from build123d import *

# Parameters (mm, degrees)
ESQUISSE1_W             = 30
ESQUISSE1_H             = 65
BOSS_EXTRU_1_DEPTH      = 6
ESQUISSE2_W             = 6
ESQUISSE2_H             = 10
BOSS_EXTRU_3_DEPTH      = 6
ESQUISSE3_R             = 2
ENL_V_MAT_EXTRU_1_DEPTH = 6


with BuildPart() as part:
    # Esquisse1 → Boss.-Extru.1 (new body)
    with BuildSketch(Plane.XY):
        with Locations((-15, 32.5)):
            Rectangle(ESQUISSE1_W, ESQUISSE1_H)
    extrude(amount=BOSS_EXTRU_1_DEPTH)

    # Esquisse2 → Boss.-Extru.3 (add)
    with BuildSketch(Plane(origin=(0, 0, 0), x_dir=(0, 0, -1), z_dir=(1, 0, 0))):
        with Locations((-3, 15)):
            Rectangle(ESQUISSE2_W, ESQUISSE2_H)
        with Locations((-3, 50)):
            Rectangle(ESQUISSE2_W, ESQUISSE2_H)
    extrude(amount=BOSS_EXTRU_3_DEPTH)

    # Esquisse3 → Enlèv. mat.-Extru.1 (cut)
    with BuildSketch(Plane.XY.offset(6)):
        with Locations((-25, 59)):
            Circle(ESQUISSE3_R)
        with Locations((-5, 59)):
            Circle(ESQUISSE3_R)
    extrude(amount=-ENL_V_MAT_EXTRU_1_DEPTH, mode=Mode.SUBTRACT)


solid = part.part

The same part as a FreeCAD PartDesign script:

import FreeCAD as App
import Part
import Sketcher
Q = App.Units.Quantity


def add_polygon(sketch, points):
    """Adds a closed chain of lines whose ends are joined by coincident constraints."""
    first, n = sketch.GeometryCount, len(points)
    for a, b in zip(points, points[1:] + points[:1]):
        sketch.addGeometry(Part.LineSegment(App.Vector(*a, 0), App.Vector(*b, 0)), False)
    for i in range(n):
        sketch.addConstraint(Sketcher.Constraint("Coincident", first + i, 2, first + (i + 1) % n, 1))

doc = App.newDocument("Part")
body = doc.addObject("PartDesign::Body", "Body")

# Sketch on XY plane
sketch1 = doc.addObject("Sketcher::SketchObject", "Sketch")
body.addObject(sketch1)
sketch1.AttachmentSupport = (doc.XY_Plane, [""])
sketch1.MapMode = "FlatFace"
add_polygon(sketch1, [(-30, 65), (-30, 0), (0, 0), (0, 65)])  # lines 0-3
sketch1.addConstraint(Sketcher.Constraint("Vertical", 0))
sketch1.addConstraint(Sketcher.Constraint("Horizontal", 1))
sketch1.addConstraint(Sketcher.Constraint("Vertical", 2))
sketch1.addConstraint(Sketcher.Constraint("Horizontal", 3))
sketch1.addConstraint(Sketcher.Constraint("Coincident", 1, 2, -1, 1))
sketch1.addConstraint(Sketcher.Constraint("DistanceX", 1, 1, 1, 2, Q("30 mm")))
sketch1.addConstraint(Sketcher.Constraint("DistanceY", 0, 2, 0, 1, Q("65 mm")))
pad1 = doc.addObject("PartDesign::Pad", "Pad")
body.addObject(pad1)
pad1.Profile = sketch1
pad1.Length = 6

# Sketch on YZ plane
sketch2 = doc.addObject("Sketcher::SketchObject", "Sketch001")
body.addObject(sketch2)
sketch2.AttachmentSupport = (doc.YZ_Plane, [""])
sketch2.MapMode = "FlatFace"
add_polygon(sketch2, [(20, 6), (10, 6), (10, 0), (20, 0)])  # lines 0-3
add_polygon(sketch2, [(55, 6), (45, 6), (45, 0), (55, 0)])  # lines 4-7
sketch2.addConstraint(Sketcher.Constraint("Horizontal", 0))
sketch2.addConstraint(Sketcher.Constraint("Vertical", 1))
sketch2.addConstraint(Sketcher.Constraint("Horizontal", 2))
sketch2.addConstraint(Sketcher.Constraint("Vertical", 3))
sketch2.addConstraint(Sketcher.Constraint("Horizontal", 4))
sketch2.addConstraint(Sketcher.Constraint("Vertical", 5))
sketch2.addConstraint(Sketcher.Constraint("Horizontal", 6))
sketch2.addConstraint(Sketcher.Constraint("Vertical", 7))
sketch2.addConstraint(Sketcher.Constraint("PointOnObject", 1, 2, -1))
sketch2.addConstraint(Sketcher.Constraint("PointOnObject", 5, 2, -1))
sketch2.addConstraint(Sketcher.Constraint("Horizontal", 3, 2, 4, 2))
sketch2.addConstraint(Sketcher.Constraint("Equal", 2, 4))
sketch2.addConstraint(Sketcher.Constraint("DistanceX", 0, 2, 0, 1, Q("10 mm")))
sketch2.addConstraint(Sketcher.Constraint("DistanceY", 1, 2, 1, 1, Q("6 mm")))
sketch2.addConstraint(Sketcher.Constraint("DistanceX", -1, 1, 0, 2, Q("10 mm")))
sketch2.addConstraint(Sketcher.Constraint("DistanceX", -1, 1, 4, 2, Q("45 mm")))
pad2 = doc.addObject("PartDesign::Pad", "Pad001")
body.addObject(pad2)
pad2.Profile = sketch2
pad2.Length = 6

# Sketch on XY plane
sketch3 = doc.addObject("Sketcher::SketchObject", "Sketch002")
body.addObject(sketch3)
sketch3.AttachmentSupport = (doc.XY_Plane, [""])
sketch3.MapMode = "FlatFace"
sketch3.AttachmentOffset = App.Placement(App.Vector(0, 0, 6), App.Rotation())
sketch3.addGeometry(Part.Circle(App.Vector(-25, 59, 0), App.Vector(0, 0, 1), 2), False)
sketch3.addGeometry(Part.Circle(App.Vector(-5, 59, 0), App.Vector(0, 0, 1), 2), False)
sketch3.addConstraint(Sketcher.Constraint("Equal", 0, 1))
sketch3.addConstraint(Sketcher.Constraint("Horizontal", 0, 3, 1, 3))
sketch3.addConstraint(Sketcher.Constraint("Diameter", 0, Q("4 mm")))
sketch3.addConstraint(Sketcher.Constraint("DistanceX", 0, 3, -1, 1, Q("25 mm")))
sketch3.addConstraint(Sketcher.Constraint("DistanceY", -1, 1, 0, 3, Q("59 mm")))
sketch3.addConstraint(Sketcher.Constraint("DistanceX", 1, 3, -1, 1, Q("5 mm")))
pocket1 = doc.addObject("PartDesign::Pocket", "Pocket")
body.addObject(pocket1)
pocket1.Profile = sketch3
pocket1.Length = 6

doc.recompute()
